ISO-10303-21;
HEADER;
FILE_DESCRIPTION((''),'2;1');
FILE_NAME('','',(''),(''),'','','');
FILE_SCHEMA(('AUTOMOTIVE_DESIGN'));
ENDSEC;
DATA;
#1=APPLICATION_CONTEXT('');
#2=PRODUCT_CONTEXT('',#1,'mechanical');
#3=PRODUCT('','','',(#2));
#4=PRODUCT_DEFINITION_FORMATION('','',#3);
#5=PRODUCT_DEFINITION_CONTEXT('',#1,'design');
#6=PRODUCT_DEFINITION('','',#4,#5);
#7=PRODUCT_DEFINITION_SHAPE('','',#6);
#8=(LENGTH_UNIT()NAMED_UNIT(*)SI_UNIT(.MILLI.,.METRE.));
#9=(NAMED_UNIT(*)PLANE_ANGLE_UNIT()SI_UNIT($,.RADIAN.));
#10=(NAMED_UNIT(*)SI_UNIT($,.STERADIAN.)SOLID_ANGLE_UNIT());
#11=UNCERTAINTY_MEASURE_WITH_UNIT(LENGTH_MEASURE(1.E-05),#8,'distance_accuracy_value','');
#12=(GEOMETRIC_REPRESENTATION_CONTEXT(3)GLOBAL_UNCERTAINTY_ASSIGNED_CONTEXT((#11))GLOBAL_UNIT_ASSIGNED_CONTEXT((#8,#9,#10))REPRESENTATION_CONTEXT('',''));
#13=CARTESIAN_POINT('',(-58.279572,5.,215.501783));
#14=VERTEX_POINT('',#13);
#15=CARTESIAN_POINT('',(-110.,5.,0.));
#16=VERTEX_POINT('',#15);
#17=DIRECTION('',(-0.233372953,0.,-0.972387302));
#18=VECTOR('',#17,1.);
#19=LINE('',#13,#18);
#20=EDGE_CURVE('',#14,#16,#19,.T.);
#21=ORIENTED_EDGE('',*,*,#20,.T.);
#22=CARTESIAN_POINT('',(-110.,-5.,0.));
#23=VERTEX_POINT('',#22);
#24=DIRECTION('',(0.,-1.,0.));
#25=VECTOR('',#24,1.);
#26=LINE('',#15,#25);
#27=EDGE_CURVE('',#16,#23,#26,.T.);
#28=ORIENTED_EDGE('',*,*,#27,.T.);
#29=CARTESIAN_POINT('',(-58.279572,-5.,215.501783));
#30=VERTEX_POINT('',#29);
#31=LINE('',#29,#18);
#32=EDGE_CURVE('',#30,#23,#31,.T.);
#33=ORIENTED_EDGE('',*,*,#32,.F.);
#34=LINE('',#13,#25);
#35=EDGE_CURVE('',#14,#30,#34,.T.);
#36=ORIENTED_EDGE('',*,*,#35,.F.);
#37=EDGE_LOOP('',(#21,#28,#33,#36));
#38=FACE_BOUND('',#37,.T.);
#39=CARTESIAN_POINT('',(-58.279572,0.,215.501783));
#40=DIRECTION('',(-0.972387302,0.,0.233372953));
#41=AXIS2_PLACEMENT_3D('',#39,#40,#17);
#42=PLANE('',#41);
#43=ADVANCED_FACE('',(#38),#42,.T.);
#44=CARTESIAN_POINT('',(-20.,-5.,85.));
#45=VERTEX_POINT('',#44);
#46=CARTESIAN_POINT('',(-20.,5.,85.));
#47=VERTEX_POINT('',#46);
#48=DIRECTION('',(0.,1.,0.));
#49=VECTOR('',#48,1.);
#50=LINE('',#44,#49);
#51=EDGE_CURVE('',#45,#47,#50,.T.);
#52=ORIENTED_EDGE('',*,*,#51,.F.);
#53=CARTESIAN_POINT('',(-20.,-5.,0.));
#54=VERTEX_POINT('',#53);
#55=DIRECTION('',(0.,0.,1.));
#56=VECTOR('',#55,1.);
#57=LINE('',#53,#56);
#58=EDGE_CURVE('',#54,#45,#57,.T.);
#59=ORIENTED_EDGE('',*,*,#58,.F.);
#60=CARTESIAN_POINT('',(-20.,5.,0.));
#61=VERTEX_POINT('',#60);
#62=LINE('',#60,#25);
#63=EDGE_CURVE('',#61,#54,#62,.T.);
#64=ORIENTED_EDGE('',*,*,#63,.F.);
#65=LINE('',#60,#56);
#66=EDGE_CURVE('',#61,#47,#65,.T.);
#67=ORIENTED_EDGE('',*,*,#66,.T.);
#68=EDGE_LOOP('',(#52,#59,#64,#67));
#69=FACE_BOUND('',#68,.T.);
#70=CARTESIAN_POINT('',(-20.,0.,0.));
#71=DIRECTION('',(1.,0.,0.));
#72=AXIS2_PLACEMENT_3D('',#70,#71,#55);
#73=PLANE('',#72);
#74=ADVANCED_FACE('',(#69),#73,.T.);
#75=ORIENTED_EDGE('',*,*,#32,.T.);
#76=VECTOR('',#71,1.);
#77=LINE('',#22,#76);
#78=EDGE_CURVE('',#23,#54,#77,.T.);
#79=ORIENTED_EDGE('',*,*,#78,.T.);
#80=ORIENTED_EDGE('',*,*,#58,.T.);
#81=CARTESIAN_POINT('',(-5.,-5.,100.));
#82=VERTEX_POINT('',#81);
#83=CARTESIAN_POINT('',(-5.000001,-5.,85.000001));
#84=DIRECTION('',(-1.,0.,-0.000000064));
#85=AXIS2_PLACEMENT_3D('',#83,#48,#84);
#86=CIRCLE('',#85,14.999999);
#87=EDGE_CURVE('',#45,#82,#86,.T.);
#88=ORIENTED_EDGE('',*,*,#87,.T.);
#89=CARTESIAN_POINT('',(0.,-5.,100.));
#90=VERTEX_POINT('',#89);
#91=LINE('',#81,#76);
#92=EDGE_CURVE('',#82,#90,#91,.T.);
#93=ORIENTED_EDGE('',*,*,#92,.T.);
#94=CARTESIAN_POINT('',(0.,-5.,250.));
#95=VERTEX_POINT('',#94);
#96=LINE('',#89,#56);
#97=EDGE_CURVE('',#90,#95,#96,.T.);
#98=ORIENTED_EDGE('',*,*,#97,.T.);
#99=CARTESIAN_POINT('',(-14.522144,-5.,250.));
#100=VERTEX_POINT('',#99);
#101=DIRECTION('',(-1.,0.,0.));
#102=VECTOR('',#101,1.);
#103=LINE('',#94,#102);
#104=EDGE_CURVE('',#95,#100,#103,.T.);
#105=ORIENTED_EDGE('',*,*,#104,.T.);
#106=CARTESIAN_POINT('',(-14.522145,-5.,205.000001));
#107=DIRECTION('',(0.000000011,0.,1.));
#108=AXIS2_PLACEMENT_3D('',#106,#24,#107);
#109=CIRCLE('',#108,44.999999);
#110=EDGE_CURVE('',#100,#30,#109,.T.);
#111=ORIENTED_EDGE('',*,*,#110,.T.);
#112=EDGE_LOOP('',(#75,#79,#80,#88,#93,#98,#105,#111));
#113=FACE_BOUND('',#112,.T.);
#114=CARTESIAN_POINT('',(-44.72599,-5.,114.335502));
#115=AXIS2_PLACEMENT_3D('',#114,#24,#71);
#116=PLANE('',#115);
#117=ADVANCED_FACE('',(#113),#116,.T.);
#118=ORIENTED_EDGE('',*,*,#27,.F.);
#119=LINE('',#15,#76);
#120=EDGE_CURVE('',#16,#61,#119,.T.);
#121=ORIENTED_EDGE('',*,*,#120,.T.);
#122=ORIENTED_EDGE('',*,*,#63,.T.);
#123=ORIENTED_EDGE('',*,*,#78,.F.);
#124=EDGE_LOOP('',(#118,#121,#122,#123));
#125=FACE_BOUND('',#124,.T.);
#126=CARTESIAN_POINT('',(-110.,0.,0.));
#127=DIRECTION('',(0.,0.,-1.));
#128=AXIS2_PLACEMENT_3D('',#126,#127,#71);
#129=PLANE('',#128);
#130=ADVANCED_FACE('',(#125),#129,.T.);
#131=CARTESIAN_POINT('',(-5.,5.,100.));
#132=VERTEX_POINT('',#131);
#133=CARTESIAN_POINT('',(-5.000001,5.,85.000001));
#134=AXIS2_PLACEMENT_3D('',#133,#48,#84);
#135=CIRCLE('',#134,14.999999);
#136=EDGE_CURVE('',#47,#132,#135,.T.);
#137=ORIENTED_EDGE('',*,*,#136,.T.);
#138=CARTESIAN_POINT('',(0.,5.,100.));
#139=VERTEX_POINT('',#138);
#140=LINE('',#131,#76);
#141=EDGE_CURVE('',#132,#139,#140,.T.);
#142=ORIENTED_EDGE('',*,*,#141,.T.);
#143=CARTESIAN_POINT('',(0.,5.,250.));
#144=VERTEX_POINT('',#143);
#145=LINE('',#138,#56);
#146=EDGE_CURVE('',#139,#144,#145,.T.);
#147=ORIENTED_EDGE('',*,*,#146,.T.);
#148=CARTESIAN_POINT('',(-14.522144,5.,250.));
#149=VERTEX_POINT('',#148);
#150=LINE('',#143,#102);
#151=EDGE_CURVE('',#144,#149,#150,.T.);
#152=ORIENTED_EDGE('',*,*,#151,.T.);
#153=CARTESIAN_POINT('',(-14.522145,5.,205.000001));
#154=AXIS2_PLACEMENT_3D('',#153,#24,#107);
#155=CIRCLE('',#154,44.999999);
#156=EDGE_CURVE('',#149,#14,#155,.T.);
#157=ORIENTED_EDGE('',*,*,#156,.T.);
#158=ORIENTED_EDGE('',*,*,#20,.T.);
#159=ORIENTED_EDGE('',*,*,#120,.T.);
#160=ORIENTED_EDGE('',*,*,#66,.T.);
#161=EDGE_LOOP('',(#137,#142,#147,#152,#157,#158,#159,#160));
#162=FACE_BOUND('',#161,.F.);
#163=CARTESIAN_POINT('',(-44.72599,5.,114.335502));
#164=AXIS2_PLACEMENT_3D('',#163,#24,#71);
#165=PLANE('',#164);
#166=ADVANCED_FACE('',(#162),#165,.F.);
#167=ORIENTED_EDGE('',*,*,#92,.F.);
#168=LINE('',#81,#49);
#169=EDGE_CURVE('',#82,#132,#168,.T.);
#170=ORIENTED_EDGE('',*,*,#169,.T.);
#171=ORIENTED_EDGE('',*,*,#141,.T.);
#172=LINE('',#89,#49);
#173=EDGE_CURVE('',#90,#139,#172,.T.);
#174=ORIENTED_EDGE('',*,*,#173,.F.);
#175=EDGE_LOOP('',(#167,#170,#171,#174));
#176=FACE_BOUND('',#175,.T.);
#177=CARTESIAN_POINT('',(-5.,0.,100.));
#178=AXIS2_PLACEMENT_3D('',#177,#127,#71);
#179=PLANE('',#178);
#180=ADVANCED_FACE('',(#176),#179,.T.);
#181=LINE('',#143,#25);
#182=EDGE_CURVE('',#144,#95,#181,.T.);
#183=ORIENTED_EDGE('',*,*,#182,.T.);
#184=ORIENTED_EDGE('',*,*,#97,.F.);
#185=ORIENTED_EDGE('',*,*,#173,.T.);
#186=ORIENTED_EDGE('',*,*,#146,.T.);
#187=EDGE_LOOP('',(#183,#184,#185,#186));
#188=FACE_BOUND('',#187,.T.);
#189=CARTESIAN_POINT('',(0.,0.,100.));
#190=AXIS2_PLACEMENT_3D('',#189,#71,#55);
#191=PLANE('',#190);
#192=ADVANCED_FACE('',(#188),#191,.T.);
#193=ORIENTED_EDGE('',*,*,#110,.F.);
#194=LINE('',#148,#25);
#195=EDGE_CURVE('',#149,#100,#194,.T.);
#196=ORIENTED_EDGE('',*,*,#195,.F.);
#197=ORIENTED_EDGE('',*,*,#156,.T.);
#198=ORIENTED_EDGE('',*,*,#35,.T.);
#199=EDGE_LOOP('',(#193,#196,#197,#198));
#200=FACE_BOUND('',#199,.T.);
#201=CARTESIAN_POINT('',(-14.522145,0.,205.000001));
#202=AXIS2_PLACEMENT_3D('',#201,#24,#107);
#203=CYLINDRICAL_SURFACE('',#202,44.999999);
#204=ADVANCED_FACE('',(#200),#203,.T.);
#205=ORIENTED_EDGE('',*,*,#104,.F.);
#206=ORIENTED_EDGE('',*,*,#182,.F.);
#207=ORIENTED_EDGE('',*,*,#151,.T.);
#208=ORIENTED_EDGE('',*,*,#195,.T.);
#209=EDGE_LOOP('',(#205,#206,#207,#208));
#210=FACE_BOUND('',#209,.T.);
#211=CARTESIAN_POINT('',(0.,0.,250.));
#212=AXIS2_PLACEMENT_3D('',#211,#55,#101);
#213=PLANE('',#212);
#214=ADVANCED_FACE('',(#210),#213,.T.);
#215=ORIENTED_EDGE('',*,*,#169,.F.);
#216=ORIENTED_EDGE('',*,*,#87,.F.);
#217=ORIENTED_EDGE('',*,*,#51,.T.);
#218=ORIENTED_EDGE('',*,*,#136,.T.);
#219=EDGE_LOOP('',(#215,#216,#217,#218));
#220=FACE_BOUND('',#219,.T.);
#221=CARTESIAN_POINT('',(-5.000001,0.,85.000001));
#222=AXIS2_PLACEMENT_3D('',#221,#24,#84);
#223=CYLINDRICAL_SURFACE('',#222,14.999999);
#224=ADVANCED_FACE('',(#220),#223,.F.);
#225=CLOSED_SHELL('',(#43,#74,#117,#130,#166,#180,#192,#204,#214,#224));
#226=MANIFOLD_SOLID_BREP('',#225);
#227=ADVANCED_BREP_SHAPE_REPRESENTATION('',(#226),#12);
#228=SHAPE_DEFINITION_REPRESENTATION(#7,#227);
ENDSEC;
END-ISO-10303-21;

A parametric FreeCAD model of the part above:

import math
import FreeCAD as App
import Part
import Sketcher
from FreeCAD import Vector

doc = App.newDocument("Part")
body = doc.addObject("PartDesign::Body", "Body")

# Sketch on XZ plane
sketch1 = doc.addObject("Sketcher::SketchObject", "Sketch")
body.addObject(sketch1)
sketch1.AttachmentSupport = (doc.XZ_Plane, [""])
sketch1.MapMode = "FlatFace"
sketch1.addGeometry([
    Part.LineSegment(Vector(0, 100, 0), Vector(0, 250, 0)),  # 0
    Part.LineSegment(Vector(0, 250, 0), Vector(-15, 250, 0)),  # 1
    Part.ArcOfCircle(Part.Circle(Vector(-15, 205, 0), Vector(0, 0, 1), 45), math.radians(90), math.radians(167)),  # 2
    Part.LineSegment(Vector(-58, 216, 0), Vector(-110, 0, 0)),  # 3
    Part.LineSegment(Vector(-110, 0, 0), Vector(-20, 0, 0)),  # 4
    Part.LineSegment(Vector(-20, 0, 0), Vector(-20, 85, 0)),  # 5
    Part.ArcOfCircle(Part.Circle(Vector(-5, 85, 0), Vector(0, 0, 1), 15), math.radians(90), math.radians(180)),  # 6
    Part.LineSegment(Vector(-5, 100, 0), Vector(0, 100, 0)),  # 7
], False)
sketch1.addConstraint([
    Sketcher.Constraint("Coincident", 0, 2, 1, 1),
    Sketcher.Constraint("Tangent", 1, 2, 2, 1),
    Sketcher.Constraint("Tangent", 2, 2, 3, 1),
    Sketcher.Constraint("Coincident", 3, 2, 4, 1),
    Sketcher.Constraint("Coincident", 4, 2, 5, 1),
    Sketcher.Constraint("Tangent", 5, 2, 6, 2),
    Sketcher.Constraint("Tangent", 6, 1, 7, 1),
    Sketcher.Constraint("Coincident", 7, 2, 0, 1),
    Sketcher.Constraint("Vertical", 0),
    Sketcher.Constraint("Horizontal", 1),
    Sketcher.Constraint("Horizontal", 4),
    Sketcher.Constraint("Vertical", 5),
    Sketcher.Constraint("Horizontal", 7),
    Sketcher.Constraint("PointOnObject", 0, 2, -2),
    Sketcher.Constraint("PointOnObject", 3, 2, -1),
    Sketcher.Constraint("Radius", 2, 44.999999),
    Sketcher.Constraint("Radius", 6, 14.999999),
    Sketcher.Constraint("DistanceX", 4, 1, 4, 2, 90.0),
    Sketcher.Constraint("DistanceX", 7, 1, 7, 2, 5.0),
    Sketcher.Constraint("DistanceY", 0, 1, 0, 2, 150.0),
    Sketcher.Constraint("DistanceY", 5, 1, 5, 2, 85.0),
    Sketcher.Constraint("DistanceX", 1, 2, 1, 1, 14.522144),
])
pad1 = doc.addObject("PartDesign::Pad", "Pad")
body.addObject(pad1)
pad1.Profile = sketch1
pad1.Length = 10
pad1.Midplane = True

doc.recompute()
